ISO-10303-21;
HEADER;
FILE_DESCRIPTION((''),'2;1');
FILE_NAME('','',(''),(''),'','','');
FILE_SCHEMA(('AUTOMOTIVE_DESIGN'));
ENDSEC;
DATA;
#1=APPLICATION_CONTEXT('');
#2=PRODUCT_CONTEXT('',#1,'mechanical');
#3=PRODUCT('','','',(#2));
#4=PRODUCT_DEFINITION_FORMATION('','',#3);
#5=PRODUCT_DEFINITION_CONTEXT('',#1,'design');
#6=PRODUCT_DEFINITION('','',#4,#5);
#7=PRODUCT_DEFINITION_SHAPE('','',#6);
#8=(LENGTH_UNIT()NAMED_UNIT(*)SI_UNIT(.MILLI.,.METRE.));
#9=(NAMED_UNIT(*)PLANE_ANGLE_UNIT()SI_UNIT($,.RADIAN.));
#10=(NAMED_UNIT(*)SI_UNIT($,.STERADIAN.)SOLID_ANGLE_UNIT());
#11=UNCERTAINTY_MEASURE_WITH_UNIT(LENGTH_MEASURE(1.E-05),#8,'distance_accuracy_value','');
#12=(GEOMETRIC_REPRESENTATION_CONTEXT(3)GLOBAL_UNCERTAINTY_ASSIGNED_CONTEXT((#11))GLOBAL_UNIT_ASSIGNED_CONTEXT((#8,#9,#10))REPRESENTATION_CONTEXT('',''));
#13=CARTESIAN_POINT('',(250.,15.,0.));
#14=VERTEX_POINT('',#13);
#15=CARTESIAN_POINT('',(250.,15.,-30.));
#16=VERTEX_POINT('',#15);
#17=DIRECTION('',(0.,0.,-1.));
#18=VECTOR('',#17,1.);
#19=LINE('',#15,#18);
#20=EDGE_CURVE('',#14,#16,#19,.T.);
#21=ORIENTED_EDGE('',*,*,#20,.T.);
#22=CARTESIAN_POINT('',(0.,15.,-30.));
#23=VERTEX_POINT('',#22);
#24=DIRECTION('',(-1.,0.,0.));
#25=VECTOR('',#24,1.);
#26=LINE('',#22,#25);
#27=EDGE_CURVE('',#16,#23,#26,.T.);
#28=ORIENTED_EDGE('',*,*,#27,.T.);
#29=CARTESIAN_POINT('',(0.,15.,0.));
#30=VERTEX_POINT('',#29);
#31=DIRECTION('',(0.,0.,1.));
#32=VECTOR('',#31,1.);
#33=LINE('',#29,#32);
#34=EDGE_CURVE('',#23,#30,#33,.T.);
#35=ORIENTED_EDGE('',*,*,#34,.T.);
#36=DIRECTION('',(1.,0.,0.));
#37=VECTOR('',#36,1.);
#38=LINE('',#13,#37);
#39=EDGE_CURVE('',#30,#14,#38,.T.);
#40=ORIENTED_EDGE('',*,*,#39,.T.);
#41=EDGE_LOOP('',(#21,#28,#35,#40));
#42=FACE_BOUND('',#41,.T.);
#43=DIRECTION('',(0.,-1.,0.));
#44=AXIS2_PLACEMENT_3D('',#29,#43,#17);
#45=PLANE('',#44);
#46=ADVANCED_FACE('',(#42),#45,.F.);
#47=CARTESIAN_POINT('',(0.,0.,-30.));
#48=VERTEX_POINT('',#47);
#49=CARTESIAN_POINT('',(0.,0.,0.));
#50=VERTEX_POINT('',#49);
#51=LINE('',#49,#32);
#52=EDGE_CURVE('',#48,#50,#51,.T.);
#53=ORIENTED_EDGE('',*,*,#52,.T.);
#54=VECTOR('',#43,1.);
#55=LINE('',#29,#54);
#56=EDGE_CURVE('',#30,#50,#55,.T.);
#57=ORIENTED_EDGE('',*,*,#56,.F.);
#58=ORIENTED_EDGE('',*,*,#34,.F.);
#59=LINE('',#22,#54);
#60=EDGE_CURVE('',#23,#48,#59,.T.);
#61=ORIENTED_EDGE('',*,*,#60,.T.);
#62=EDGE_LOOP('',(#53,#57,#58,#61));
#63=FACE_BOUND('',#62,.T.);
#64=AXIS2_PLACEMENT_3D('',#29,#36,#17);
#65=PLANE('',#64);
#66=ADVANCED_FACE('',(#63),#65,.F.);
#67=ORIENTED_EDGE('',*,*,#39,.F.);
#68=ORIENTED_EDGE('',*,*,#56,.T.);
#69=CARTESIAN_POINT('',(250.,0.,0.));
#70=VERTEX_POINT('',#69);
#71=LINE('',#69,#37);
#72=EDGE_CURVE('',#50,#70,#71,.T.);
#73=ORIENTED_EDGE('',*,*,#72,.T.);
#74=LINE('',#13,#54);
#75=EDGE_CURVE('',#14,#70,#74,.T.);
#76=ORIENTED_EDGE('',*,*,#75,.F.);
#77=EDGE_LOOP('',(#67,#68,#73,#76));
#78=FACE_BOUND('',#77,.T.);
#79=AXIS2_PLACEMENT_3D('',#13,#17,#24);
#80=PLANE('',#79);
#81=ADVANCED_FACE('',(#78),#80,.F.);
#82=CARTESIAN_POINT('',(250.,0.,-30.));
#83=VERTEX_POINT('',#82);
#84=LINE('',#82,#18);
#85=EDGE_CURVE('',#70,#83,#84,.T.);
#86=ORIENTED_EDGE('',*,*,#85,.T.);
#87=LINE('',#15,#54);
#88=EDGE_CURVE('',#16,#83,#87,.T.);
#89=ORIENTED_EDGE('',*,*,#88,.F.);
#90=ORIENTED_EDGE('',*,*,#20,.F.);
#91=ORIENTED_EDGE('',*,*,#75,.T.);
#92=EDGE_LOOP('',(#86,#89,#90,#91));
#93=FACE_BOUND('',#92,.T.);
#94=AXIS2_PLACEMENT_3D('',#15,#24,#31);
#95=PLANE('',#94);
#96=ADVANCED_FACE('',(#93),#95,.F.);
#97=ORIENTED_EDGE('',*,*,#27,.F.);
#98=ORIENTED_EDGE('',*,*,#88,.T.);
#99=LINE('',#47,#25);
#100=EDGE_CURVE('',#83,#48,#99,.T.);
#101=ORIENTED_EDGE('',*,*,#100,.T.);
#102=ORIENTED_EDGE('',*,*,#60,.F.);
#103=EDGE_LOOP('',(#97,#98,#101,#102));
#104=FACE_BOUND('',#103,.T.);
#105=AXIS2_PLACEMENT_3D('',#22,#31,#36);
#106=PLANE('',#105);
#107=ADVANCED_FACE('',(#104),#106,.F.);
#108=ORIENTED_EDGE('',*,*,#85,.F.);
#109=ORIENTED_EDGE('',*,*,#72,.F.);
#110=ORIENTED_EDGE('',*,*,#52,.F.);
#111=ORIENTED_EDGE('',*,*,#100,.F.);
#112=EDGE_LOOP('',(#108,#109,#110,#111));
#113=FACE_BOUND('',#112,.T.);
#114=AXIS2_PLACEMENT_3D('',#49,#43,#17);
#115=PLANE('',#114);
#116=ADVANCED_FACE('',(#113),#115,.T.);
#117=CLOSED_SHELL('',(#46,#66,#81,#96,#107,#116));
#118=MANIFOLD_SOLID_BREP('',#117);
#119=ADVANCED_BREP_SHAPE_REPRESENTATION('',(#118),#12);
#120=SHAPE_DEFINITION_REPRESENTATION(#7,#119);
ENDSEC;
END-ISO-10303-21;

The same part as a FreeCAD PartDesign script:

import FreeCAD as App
import Part
import Sketcher
Q = App.Units.Quantity


def add_polygon(sketch, points):
    """Adds a closed chain of lines whose ends are joined by coincident constraints."""
    first, n = sketch.GeometryCount, len(points)
    for a, b in zip(points, points[1:] + points[:1]):
        sketch.addGeometry(Part.LineSegment(App.Vector(*a, 0), App.Vector(*b, 0)), False)
    for i in range(n):
        sketch.addConstraint(Sketcher.Constraint("Coincident", first + i, 2, first + (i + 1) % n, 1))

doc = App.newDocument("Part")
body = doc.addObject("PartDesign::Body", "Body")

# Sketch on XZ plane
sketch1 = body.newObject("Sketcher::SketchObject", "Sketch")
sketch1.AttachmentSupport = (doc.getObject("XZ_Plane"), [""])
sketch1.MapMode = "FlatFace"
add_polygon(sketch1, [(0, -30), (0, 0), (250, 0), (250, -30)])  # lines 0-3
sketch1.addConstraint([
    Sketcher.Constraint("Vertical", 0),
    Sketcher.Constraint("Horizontal", 1),
    Sketcher.Constraint("Vertical", 2),
    Sketcher.Constraint("Horizontal", 3),
    Sketcher.Constraint("Coincident", 0, 2, -1, 1),
    Sketcher.Constraint("DistanceX", 1, 1, 1, 2, Q("250 mm")),
    Sketcher.Constraint("DistanceY", 0, 1, 0, 2, Q("30 mm")),
])
pad1 = body.newObject("PartDesign::Pad", "Pad")
pad1.Profile = sketch1
pad1.Length = 15
pad1.Reversed = True

doc.recompute()
